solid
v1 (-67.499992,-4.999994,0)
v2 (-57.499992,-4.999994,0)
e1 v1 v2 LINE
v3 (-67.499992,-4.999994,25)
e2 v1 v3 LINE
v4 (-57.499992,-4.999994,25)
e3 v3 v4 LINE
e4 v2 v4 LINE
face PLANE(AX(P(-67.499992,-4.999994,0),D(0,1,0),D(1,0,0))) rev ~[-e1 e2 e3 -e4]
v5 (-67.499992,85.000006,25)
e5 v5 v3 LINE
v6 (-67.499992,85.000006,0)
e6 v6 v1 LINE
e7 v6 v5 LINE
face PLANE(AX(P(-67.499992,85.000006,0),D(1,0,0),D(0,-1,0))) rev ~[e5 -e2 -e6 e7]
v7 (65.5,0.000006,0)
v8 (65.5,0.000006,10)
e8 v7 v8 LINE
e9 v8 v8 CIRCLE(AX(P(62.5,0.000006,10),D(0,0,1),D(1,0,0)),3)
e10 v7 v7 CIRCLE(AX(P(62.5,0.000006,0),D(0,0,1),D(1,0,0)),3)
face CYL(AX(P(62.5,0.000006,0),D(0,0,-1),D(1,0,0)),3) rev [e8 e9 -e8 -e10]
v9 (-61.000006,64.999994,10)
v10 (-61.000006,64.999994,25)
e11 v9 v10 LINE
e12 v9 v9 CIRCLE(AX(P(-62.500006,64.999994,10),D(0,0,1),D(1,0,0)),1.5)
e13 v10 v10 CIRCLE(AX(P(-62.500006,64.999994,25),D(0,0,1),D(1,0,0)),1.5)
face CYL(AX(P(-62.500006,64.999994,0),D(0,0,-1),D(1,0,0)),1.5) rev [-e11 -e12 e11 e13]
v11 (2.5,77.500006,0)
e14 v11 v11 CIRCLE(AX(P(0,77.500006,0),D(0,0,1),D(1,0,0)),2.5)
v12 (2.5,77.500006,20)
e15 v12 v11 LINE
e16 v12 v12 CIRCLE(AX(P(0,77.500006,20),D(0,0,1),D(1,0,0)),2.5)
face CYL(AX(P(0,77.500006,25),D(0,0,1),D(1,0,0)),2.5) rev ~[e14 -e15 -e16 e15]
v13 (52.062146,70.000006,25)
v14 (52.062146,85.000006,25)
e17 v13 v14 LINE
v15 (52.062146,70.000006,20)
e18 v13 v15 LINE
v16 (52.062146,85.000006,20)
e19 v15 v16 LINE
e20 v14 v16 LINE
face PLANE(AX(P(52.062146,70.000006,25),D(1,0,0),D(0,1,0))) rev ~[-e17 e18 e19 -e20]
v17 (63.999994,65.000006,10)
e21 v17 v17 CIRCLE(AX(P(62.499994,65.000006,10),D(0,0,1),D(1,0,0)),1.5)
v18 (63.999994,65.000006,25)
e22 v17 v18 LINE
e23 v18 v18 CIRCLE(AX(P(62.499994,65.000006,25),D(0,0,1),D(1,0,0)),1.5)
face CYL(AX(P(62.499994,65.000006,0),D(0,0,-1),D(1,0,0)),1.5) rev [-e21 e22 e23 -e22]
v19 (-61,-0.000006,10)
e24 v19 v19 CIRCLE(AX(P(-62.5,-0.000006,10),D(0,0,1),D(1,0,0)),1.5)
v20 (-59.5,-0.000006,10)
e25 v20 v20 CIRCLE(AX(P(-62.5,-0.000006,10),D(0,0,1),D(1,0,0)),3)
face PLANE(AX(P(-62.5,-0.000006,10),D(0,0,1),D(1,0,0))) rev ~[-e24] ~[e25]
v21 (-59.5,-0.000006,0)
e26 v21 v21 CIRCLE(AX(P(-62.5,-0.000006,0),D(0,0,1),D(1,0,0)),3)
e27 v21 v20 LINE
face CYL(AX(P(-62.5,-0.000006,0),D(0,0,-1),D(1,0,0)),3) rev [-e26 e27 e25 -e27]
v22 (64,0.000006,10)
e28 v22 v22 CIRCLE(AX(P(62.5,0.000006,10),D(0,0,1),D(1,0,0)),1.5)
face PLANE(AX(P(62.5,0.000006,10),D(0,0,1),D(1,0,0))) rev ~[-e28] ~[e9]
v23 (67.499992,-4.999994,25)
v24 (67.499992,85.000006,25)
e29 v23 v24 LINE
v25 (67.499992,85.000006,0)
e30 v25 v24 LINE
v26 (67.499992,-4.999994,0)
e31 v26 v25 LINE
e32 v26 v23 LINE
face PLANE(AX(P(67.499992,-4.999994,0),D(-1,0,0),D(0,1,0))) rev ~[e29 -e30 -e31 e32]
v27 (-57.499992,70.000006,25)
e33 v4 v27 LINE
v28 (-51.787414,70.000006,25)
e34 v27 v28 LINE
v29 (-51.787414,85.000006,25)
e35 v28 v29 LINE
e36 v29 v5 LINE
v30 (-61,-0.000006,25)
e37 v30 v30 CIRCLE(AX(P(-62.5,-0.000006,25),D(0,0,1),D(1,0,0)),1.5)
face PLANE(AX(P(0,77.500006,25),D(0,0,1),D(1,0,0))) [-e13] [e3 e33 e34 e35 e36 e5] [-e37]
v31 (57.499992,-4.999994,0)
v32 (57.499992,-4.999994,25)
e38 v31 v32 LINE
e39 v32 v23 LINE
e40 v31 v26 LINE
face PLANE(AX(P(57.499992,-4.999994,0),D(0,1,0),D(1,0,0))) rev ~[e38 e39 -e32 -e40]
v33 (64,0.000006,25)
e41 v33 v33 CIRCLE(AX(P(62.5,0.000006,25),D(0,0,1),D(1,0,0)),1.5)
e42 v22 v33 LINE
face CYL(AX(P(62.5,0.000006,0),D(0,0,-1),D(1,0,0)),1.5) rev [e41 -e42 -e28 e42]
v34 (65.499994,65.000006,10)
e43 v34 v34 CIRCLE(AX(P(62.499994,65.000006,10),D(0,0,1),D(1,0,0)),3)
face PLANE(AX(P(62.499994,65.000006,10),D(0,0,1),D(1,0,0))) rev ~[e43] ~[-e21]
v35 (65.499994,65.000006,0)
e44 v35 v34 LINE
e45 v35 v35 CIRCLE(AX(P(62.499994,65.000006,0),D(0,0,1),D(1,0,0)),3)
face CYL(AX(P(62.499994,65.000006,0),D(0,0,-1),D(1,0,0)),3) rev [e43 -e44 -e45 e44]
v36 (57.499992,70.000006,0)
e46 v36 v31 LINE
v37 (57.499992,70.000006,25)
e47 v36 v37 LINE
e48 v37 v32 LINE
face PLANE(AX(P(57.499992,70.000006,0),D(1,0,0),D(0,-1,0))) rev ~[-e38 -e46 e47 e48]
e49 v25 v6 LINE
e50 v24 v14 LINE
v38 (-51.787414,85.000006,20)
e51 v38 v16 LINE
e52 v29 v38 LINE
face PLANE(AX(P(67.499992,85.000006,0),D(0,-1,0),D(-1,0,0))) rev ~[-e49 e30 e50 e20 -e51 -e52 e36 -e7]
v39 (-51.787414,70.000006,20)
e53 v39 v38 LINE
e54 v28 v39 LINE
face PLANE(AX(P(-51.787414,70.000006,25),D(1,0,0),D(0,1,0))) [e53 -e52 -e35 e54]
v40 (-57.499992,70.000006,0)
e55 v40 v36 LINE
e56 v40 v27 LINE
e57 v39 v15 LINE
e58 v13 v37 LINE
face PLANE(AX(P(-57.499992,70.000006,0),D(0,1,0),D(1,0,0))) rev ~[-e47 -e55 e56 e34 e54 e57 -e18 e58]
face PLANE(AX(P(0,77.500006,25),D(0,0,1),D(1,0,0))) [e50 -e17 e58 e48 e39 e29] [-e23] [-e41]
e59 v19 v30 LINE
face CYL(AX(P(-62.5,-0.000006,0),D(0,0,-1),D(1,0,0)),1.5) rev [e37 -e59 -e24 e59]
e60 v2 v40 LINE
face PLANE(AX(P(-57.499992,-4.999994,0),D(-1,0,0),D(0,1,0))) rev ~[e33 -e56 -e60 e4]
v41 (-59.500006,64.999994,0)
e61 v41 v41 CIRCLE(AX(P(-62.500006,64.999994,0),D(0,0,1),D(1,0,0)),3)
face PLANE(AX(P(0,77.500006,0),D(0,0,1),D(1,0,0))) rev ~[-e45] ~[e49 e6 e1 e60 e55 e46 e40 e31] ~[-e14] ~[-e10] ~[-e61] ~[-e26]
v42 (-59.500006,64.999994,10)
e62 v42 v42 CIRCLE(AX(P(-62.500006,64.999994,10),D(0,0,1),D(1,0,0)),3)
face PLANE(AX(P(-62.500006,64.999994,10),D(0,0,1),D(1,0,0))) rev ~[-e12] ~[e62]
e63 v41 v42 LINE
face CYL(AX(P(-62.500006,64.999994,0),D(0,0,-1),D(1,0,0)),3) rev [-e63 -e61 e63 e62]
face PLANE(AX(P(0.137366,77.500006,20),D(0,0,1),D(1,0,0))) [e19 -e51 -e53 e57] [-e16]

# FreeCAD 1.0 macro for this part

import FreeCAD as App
import Part
import Sketcher

doc = App.newDocument("Part")
body = doc.addObject("PartDesign::Body", "Body")

sketch1 = body.newObject("Sketcher::SketchObject", "Sketch")
sketch1.AttachmentSupport = (doc.getObject("XY_Plane"), [""])
sketch1.MapMode = "FlatFace"
sketch1.addGeometry(Part.LineSegment(App.Vector(-57.499992, 70.000006, 0), App.Vector(57.499992, 70.000006, 0)), False)
sketch1.addGeometry(Part.LineSegment(App.Vector(57.499992, 70.000006, 0), App.Vector(57.499992, -4.999994, 0)), False)
sketch1.addGeometry(Part.LineSegment(App.Vector(57.499992, -4.999994, 0), App.Vector(67.499992, -4.999994, 0)), False)
sketch1.addGeometry(Part.LineSegment(App.Vector(67.499992, -4.999994, 0), App.Vector(67.499992, 85.000006, 0)), False)
sketch1.addGeometry(Part.LineSegment(App.Vector(67.499992, 85.000006, 0), App.Vector(-67.499992, 85.000006, 0)), False)
sketch1.addGeometry(Part.LineSegment(App.Vector(-67.499992, 85.000006, 0), App.Vector(-67.499992, -4.999994, 0)), False)
sketch1.addGeometry(Part.LineSegment(App.Vector(-67.499992, -4.999994, 0), App.Vector(-57.499992, -4.999994, 0)), False)
sketch1.addGeometry(Part.LineSegment(App.Vector(-57.499992, -4.999994, 0), App.Vector(-57.499992, 70.000006, 0)), False)
sketch1.addGeometry(Part.Circle(App.Vector(-62.5, -0.000006, 0), App.Vector(0, 0, 1), 1.5), False)
sketch1.addGeometry(Part.Circle(App.Vector(62.5, 0.000006, 0), App.Vector(0, 0, 1), 1.5), False)
sketch1.addGeometry(Part.Circle(App.Vector(-62.500006, 64.999994, 0), App.Vector(0, 0, 1), 1.5), False)
sketch1.addGeometry(Part.Circle(App.Vector(62.499994, 65.000006, 0), App.Vector(0, 0, 1), 1.5), False)
sketch1.addConstraint(Sketcher.Constraint("Coincident", 0, 2, 1, 1))
sketch1.addConstraint(Sketcher.Constraint("Coincident", 1, 2, 2, 1))
sketch1.addConstraint(Sketcher.Constraint("Coincident", 2, 2, 3, 1))
sketch1.addConstraint(Sketcher.Constraint("Coincident", 3, 2, 4, 1))
sketch1.addConstraint(Sketcher.Constraint("Coincident", 4, 2, 5, 1))
sketch1.addConstraint(Sketcher.Constraint("Coincident", 5, 2, 6, 1))
sketch1.addConstraint(Sketcher.Constraint("Coincident", 6, 2, 7, 1))
sketch1.addConstraint(Sketcher.Constraint("Coincident", 7, 2, 0, 1))
sketch1.addConstraint(Sketcher.Constraint("Horizontal", 0))
sketch1.addConstraint(Sketcher.Constraint("Vertical", 1))
sketch1.addConstraint(Sketcher.Constraint("Horizontal", 2))
sketch1.addConstraint(Sketcher.Constraint("Vertical", 3))
sketch1.addConstraint(Sketcher.Constraint("Horizontal", 4))
sketch1.addConstraint(Sketcher.Constraint("Vertical", 5))
sketch1.addConstraint(Sketcher.Constraint("Horizontal", 6))
sketch1.addConstraint(Sketcher.Constraint("Vertical", 7))
sketch1.addConstraint(Sketcher.Constraint("Equal", 8, 9))
sketch1.addConstraint(Sketcher.Constraint("Equal", 9, 10))
sketch1.addConstraint(Sketcher.Constraint("Equal", 10, 11))
sketch1.addConstraint(Sketcher.Constraint("Symmetric", 8, 3, 9, 3, -1, 1))
sketch1.addConstraint(Sketcher.Constraint("Symmetric", 2, 2, 5, 2, -2))
sketch1.addConstraint(Sketcher.Constraint("Equal", 2, 6))
sketch1.addConstraint(Sketcher.Constraint("Diameter", 8, 3.0))
sketch1.addConstraint(Sketcher.Constraint("DistanceX", 2, 1, 2, 2, 10.0))
sketch1.addConstraint(Sketcher.Constraint("DistanceY", 1, 2, 1, 1, 75.0))
sketch1.addConstraint(Sketcher.Constraint("DistanceY", 3, 1, 3, 2, 90.0))
sketch1.addConstraint(Sketcher.Constraint("DistanceX", 8, 3, 9, 3, 125.0))
sketch1.addConstraint(Sketcher.Constraint("DistanceY", 8, 3, 10, 3, 65.0))
sketch1.addConstraint(Sketcher.Constraint("DistanceY", 9, 3, 11, 3, 65.0))
sketch1.addConstraint(Sketcher.Constraint("DistanceX", 10, 3, 11, 3, 125.0))
sketch1.addConstraint(Sketcher.Constraint("DistanceY", 11, 3, 0, 2, 5.0))
sketch1.addConstraint(Sketcher.Constraint("DistanceX", 10, 3, 0, 2, 119.999998))
sketch1.addConstraint(Sketcher.Constraint("DistanceX", 0, 1, 0, 2, 114.999984))
sketch1.addConstraint(Sketcher.Constraint("DistanceY", 9, 3, 10, 3, 64.999988))
pad1 = body.newObject("PartDesign::Pad", "Pad")
pad1.Profile = sketch1
pad1.Length = 25

sketch2 = body.newObject("Sketcher::SketchObject", "Sketch001")
sketch2.AttachmentSupport = (doc.getObject("XY_Plane"), [""])
sketch2.MapMode = "FlatFace"
sketch2.AttachmentOffset = App.Placement(App.Vector(0, 0, 25), App.Rotation())
sketch2.addGeometry(Part.Circle(App.Vector(0, 77.500006, 0), App.Vector(0, 0, 1), 2.5), False)
sketch2.addConstraint(Sketcher.Constraint("PointOnObject", 0, 3, -2))
sketch2.addConstraint(Sketcher.Constraint("Diameter", 0, 5.0))
sketch2.addConstraint(Sketcher.Constraint("DistanceY", -1, 1, 0, 3, 77.500006))
pocket1 = body.newObject("PartDesign::Pocket", "Pocket")
pocket1.Profile = sketch2
pocket1.Length = 25

sketch3 = body.newObject("Sketcher::SketchObject", "Sketch002")
sketch3.AttachmentSupport = (doc.getObject("XY_Plane"), [""])
sketch3.MapMode = "FlatFace"
sketch3.AttachmentOffset = App.Placement(App.Vector(0, 0, 25), App.Rotation())
sketch3.addGeometry(Part.LineSegment(App.Vector(-51.787414, 85.000006, 0), App.Vector(-51.787414, 70.000006, 0)), False)
sketch3.addGeometry(Part.LineSegment(App.Vector(-51.787414, 70.000006, 0), App.Vector(52.062146, 70.000006, 0)), False)
sketch3.addGeometry(Part.LineSegment(App.Vector(52.062146, 70.000006, 0), App.Vector(52.062146, 85.000006, 0)), False)
sketch3.addGeometry(Part.LineSegment(App.Vector(52.062146, 85.000006, 0), App.Vector(-51.787414, 85.000006, 0)), False)
sketch3.addGeometry(Part.Circle(App.Vector(0, 77.500006, 0), App.Vector(0, 0, 1), 2.5), False)
sketch3.addConstraint(Sketcher.Constraint("Coincident", 0, 2, 1, 1))
sketch3.addConstraint(Sketcher.Constraint("Coincident", 1, 2, 2, 1))
sketch3.addConstraint(Sketcher.Constraint("Coincident", 2, 2, 3, 1))
sketch3.addConstraint(Sketcher.Constraint("Coincident", 3, 2, 0, 1))
sketch3.addConstraint(Sketcher.Constraint("Vertical", 0))
sketch3.addConstraint(Sketcher.Constraint("Horizontal", 1))
sketch3.addConstraint(Sketcher.Constraint("Vertical", 2))
sketch3.addConstraint(Sketcher.Constraint("Horizontal", 3))
sketch3.addConstraint(Sketcher.Constraint("PointOnObject", 4, 3, -2))
sketch3.addConstraint(Sketcher.Constraint("Diameter", 4, 5.0))
sketch3.addConstraint(Sketcher.Constraint("DistanceY", 0, 2, 0, 1, 15.0))
sketch3.addConstraint(Sketcher.Constraint("DistanceY", 0, 2, 4, 3, 7.5))
sketch3.addConstraint(Sketcher.Constraint("DistanceX", 1, 1, 1, 2, 103.84956))
sketch3.addConstraint(Sketcher.Constraint("DistanceY", -1, 1, 4, 3, 77.500006))
sketch3.addConstraint(Sketcher.Constraint("DistanceX", 0, 2, -1, 1, 51.787414))
pocket2 = body.newObject("PartDesign::Pocket", "Pocket001")
pocket2.Profile = sketch3
pocket2.Length = 5

sketch4 = body.newObject("Sketcher::SketchObject", "Sketch003")
sketch4.AttachmentSupport = (doc.getObject("XY_Plane"), [""])
sketch4.MapMode = "FlatFace"
sketch4.addGeometry(Part.Circle(App.Vector(-62.500006, 64.999994, 0), App.Vector(0, 0, 1), 3), False)
sketch4.addGeometry(Part.Circle(App.Vector(-62.500006, 64.999994, 0), App.Vector(0, 0, 1), 1.5), False)
sketch4.addGeometry(Part.Circle(App.Vector(-62.5, -0.000006, 0), App.Vector(0, 0, 1), 3), False)
sketch4.addGeometry(Part.Circle(App.Vector(-62.5, -0.000006, 0), App.Vector(0, 0, 1), 1.5), False)
sketch4.addGeometry(Part.Circle(App.Vector(62.5, 0.000006, 0), App.Vector(0, 0, 1), 3), False)
sketch4.addGeometry(Part.Circle(App.Vector(62.5, 0.000006, 0), App.Vector(0, 0, 1), 1.5), False)
sketch4.addGeometry(Part.Circle(App.Vector(62.499994, 65.000006, 0), App.Vector(0, 0, 1), 3), False)
sketch4.addGeometry(Part.Circle(App.Vector(62.499994, 65.000006, 0), App.Vector(0, 0, 1), 1.5), False)
sketch4.addConstraint(Sketcher.Constraint("Coincident", 1, 3, 0, 3))
sketch4.addConstraint(Sketcher.Constraint("Coincident", 3, 3, 2, 3))
sketch4.addConstraint(Sketcher.Constraint("Coincident", 5, 3, 4, 3))
sketch4.addConstraint(Sketcher.Constraint("Coincident", 7, 3, 6, 3))
sketch4.addConstraint(Sketcher.Constraint("Equal", 0, 2))
sketch4.addConstraint(Sketcher.Constraint("Equal", 1, 3))
sketch4.addConstraint(Sketcher.Constraint("Equal", 2, 4))
sketch4.addConstraint(Sketcher.Constraint("Equal", 3, 5))
sketch4.addConstraint(Sketcher.Constraint("Equal", 4, 6))
sketch4.addConstraint(Sketcher.Constraint("Equal", 5, 7))
sketch4.addConstraint(Sketcher.Constraint("Symmetric", 2, 3, 4, 3, -1, 1))
sketch4.addConstraint(Sketcher.Constraint("Diameter", 0, 6.0))
sketch4.addConstraint(Sketcher.Constraint("Diameter", 1, 3.0))
sketch4.addConstraint(Sketcher.Constraint("DistanceY", 2, 3, 0, 3, 65.0))
sketch4.addConstraint(Sketcher.Constraint("DistanceX", 2, 3, 4, 3, 125.0))
sketch4.addConstraint(Sketcher.Constraint("DistanceY", 4, 3, 6, 3, 65.0))
sketch4.addConstraint(Sketcher.Constraint("DistanceX", 0, 3, 6, 3, 125.0))
sketch4.addConstraint(Sketcher.Constraint("DistanceY", 4, 3, 0, 3, 64.999988))
sketch4.addConstraint(Sketcher.Constraint("DistanceX", 0, 3, -1, 1, 62.500006))
pocket3 = body.newObject("PartDesign::Pocket", "Pocket002")
pocket3.Profile = sketch4
pocket3.Length = 10
pocket3.Reversed = True

doc.recompute()
